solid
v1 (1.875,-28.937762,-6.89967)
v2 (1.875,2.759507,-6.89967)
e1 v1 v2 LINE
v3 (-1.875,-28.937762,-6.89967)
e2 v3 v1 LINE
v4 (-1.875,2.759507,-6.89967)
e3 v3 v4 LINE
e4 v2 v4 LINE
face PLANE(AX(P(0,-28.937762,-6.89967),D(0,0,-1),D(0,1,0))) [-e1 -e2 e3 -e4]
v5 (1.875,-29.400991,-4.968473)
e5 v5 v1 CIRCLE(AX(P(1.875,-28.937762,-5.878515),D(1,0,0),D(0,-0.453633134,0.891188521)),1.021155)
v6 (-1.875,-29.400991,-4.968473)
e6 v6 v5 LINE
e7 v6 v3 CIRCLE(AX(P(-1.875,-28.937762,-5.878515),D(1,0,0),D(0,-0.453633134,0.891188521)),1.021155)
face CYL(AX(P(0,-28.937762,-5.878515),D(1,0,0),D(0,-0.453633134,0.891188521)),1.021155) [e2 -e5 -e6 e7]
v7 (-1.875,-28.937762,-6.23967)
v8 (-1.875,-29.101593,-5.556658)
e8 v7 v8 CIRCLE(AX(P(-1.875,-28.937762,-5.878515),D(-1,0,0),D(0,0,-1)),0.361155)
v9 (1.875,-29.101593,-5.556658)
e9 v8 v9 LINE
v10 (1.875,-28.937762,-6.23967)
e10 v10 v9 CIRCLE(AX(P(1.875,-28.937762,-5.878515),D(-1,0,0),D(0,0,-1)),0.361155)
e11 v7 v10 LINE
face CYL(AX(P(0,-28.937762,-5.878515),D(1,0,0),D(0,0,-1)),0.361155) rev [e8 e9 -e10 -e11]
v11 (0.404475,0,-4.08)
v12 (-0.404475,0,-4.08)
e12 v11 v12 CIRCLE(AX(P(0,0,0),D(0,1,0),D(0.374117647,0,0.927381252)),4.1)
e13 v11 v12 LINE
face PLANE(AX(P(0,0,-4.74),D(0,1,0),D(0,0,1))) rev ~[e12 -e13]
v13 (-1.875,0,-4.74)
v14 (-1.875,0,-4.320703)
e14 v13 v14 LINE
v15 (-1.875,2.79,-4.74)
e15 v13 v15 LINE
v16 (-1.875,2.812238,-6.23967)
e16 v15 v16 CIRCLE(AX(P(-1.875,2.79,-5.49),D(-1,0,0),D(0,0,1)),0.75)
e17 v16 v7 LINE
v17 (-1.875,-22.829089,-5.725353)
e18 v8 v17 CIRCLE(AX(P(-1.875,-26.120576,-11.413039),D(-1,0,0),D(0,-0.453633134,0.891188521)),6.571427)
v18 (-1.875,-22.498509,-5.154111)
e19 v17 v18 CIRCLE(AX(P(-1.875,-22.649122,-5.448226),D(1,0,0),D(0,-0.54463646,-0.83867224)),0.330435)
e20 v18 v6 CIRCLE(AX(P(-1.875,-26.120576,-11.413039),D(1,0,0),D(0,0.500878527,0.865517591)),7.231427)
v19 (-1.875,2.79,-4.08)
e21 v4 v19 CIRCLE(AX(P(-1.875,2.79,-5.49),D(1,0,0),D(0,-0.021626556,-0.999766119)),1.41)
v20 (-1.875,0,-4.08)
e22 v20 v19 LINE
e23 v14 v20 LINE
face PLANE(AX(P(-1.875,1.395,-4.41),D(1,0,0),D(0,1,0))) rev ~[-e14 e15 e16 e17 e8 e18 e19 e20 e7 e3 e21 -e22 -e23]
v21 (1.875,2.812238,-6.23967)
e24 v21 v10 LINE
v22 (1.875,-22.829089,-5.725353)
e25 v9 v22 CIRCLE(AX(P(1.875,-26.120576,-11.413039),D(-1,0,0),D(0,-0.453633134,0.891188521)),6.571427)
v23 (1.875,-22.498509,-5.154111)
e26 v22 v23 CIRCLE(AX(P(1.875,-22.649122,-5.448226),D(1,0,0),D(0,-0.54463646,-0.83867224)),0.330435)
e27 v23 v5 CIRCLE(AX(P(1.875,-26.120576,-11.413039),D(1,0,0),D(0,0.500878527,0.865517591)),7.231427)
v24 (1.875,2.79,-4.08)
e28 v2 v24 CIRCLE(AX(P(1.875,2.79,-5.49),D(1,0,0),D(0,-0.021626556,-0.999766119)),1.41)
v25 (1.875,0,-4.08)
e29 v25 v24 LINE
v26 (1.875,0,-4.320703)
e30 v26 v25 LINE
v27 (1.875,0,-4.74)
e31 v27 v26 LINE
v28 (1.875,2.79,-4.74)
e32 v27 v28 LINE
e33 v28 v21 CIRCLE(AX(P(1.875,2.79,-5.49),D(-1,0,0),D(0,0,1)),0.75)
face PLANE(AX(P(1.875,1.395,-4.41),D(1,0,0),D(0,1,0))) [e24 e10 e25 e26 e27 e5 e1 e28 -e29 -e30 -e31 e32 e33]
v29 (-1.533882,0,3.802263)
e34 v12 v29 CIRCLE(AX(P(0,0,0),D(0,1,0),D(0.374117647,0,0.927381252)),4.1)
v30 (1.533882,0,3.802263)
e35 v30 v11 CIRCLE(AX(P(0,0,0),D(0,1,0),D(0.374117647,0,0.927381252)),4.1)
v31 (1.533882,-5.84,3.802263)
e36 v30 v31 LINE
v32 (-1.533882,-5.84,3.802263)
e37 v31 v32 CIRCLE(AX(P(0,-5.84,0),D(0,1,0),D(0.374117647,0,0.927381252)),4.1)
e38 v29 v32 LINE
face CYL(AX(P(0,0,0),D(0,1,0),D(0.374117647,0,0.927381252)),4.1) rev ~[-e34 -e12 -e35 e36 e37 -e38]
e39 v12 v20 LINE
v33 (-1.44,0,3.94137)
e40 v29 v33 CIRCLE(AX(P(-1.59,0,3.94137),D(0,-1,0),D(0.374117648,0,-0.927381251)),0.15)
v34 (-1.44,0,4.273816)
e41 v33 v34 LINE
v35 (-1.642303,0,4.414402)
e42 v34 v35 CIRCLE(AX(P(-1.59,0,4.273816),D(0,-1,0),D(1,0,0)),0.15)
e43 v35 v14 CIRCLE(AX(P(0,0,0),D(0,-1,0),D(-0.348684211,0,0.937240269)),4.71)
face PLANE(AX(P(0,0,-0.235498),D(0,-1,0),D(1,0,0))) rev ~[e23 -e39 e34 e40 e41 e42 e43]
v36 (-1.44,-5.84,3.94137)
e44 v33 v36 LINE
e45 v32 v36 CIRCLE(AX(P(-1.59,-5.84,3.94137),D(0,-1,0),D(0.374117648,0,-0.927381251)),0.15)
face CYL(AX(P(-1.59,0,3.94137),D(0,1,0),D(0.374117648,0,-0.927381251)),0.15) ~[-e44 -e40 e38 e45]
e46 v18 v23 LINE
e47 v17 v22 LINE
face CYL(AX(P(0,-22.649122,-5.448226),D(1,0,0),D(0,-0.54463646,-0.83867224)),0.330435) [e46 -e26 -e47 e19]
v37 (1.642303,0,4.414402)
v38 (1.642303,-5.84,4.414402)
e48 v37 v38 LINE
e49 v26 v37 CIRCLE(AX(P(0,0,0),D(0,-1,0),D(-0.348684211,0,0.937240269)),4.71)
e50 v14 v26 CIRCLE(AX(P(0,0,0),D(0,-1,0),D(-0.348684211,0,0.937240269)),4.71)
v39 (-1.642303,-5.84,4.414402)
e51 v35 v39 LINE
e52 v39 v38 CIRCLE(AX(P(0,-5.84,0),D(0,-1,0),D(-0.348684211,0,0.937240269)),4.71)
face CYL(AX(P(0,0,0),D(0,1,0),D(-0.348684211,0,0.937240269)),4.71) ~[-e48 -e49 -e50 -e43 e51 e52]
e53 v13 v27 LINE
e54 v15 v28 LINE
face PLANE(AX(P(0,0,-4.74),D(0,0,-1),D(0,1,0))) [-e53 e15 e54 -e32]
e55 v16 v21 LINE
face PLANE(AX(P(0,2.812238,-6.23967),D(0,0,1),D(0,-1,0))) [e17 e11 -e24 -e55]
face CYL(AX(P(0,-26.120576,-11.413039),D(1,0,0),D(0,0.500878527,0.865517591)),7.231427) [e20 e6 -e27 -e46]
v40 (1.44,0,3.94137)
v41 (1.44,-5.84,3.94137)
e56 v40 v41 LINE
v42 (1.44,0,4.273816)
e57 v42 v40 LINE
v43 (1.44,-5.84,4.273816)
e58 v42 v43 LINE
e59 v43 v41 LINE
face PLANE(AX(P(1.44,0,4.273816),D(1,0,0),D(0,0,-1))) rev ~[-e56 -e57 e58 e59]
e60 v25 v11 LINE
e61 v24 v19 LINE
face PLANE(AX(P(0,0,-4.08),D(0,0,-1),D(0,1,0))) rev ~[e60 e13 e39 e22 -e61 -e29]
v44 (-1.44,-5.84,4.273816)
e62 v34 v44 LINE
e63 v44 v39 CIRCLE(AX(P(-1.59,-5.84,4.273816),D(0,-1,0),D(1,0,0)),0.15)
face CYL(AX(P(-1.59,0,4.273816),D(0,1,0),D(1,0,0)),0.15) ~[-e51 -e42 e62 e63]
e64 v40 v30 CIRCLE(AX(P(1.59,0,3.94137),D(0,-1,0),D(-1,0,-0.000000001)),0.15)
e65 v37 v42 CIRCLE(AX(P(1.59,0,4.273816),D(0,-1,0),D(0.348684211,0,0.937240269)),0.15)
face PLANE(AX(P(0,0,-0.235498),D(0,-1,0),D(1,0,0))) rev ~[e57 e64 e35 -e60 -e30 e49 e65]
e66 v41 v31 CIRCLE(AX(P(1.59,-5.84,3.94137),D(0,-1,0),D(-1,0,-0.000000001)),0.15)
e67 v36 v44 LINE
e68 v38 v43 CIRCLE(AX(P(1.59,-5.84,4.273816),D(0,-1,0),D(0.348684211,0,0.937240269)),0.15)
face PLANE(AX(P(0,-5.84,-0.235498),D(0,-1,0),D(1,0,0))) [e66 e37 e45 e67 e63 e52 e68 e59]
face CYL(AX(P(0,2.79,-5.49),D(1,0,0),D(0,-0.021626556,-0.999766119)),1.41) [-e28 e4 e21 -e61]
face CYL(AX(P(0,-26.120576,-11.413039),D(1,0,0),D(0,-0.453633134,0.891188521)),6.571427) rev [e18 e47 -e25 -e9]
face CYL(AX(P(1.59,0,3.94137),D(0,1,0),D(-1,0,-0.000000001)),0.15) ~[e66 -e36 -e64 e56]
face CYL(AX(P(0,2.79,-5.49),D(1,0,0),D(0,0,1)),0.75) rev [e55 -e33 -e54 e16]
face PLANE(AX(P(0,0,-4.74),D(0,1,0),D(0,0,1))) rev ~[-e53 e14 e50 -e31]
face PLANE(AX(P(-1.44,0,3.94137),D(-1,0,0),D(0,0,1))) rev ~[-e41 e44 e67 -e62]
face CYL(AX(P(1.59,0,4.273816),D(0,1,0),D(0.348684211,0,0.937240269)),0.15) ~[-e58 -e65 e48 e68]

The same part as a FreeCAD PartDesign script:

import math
import FreeCAD as App
import Part
import Sketcher

V = App.Vector
Q = App.Units.Quantity

doc = App.newDocument("Part")
body = doc.addObject("PartDesign::Body", "Body")

# Sketch on XZ plane
sketch1 = body.newObject("Sketcher::SketchObject", "Sketch")
sketch1.AttachmentSupport = (doc.getObject("XZ_Plane"), [""])
sketch1.MapMode = "FlatFace"
sketch1.addGeometry([
    Part.ArcOfCircle(Part.Circle(V(0, 0, 0), V(0, 0, 1), 4.1), math.radians(112), math.radians(428)),  # 0
    Part.ArcOfCircle(Part.Circle(V(-1.59, 3.94, 0), V(0, 0, 1), 0.15), math.radians(-68), math.radians(0)),  # 1
    Part.LineSegment(V(-1.44, 3.94, 0), V(-1.44, 4.27, 0)),  # 2
    Part.ArcOfCircle(Part.Circle(V(-1.59, 4.27, 0), V(0, 0, 1), 0.15), math.radians(0), math.radians(110)),  # 3
    Part.ArcOfCircle(Part.Circle(V(0, 0, 0), V(0, 0, 1), 4.71), math.radians(110), math.radians(430)),  # 4
    Part.ArcOfCircle(Part.Circle(V(1.59, 4.27, 0), V(0, 0, 1), 0.15), math.radians(70), math.radians(180)),  # 5
    Part.LineSegment(V(1.44, 4.27, 0), V(1.44, 3.94, 0)),  # 6
    Part.ArcOfCircle(Part.Circle(V(1.59, 3.94, 0), V(0, 0, 1), 0.15), math.radians(180), math.radians(248)),  # 7
], False)
sketch1.addConstraint([
    Sketcher.Constraint("Tangent", 0, 1, 1, 1),
    Sketcher.Constraint("Tangent", 1, 2, 2, 1),
    Sketcher.Constraint("Tangent", 2, 2, 3, 1),
    Sketcher.Constraint("Tangent", 3, 2, 4, 1),
    Sketcher.Constraint("Tangent", 4, 2, 5, 1),
    Sketcher.Constraint("Tangent", 5, 2, 6, 1),
    Sketcher.Constraint("Tangent", 6, 2, 7, 1),
    Sketcher.Constraint("Tangent", 7, 2, 0, 2),
    Sketcher.Constraint("Vertical", 2),
    Sketcher.Constraint("Vertical", 6),
    Sketcher.Constraint("Coincident", 0, 3, -1, 1),
    Sketcher.Constraint("Coincident", 4, 3, -1, 1),
    Sketcher.Constraint("Equal", 1, 3),
    Sketcher.Constraint("Equal", 3, 5),
    Sketcher.Constraint("Equal", 5, 7),
    Sketcher.Constraint("Horizontal", 3, 3, 5, 3),
    Sketcher.Constraint("Radius", 0, Q("4.1 mm")),
    Sketcher.Constraint("Radius", 1, Q("0.15 mm")),
    Sketcher.Constraint("Radius", 4, Q("4.71 mm")),
    Sketcher.Constraint("DistanceX", 1, 3, -1, 1, Q("1.59 mm")),
])
pad1 = body.newObject("PartDesign::Pad", "Pad")
pad1.Profile = sketch1
pad1.Length = 5.84

# Sketch on YZ plane
sketch2 = body.newObject("Sketcher::SketchObject", "Sketch001")
sketch2.AttachmentSupport = (doc.getObject("YZ_Plane"), [""])
sketch2.MapMode = "FlatFace"
sketch2.addGeometry([
    Part.LineSegment(V(0, -4.08, 0), V(0, -4.74, 0)),  # 0
    Part.LineSegment(V(0, -4.74, 0), V(2.79, -4.74, 0)),  # 1
    Part.ArcOfCircle(Part.Circle(V(2.79, -5.49, 0), V(0, 0, 1), 0.75), math.radians(-88), math.radians(90)),  # 2
    Part.LineSegment(V(2.81, -6.24, 0), V(-28.94, -6.24, 0)),  # 3
    Part.ArcOfCircle(Part.Circle(V(-28.94, -5.88, 0), V(0, 0, 1), 0.36), math.radians(117), math.radians(270)),  # 4
    Part.ArcOfCircle(Part.Circle(V(-26.12, -11.41, 0), V(0, 0, 1), 6.57), math.radians(60), math.radians(117)),  # 5
    Part.ArcOfCircle(Part.Circle(V(-22.65, -5.45, 0), V(0, 0, 1), 0.33), math.radians(-123), math.radians(63)),  # 6
    Part.ArcOfCircle(Part.Circle(V(-26.12, -11.41, 0), V(0, 0, 1), 7.23), math.radians(60), math.radians(117)),  # 7
    Part.ArcOfCircle(Part.Circle(V(-28.94, -5.88, 0), V(0, 0, 1), 1.02), math.radians(117), math.radians(270)),  # 8
    Part.LineSegment(V(-28.94, -6.9, 0), V(2.76, -6.9, 0)),  # 9
    Part.ArcOfCircle(Part.Circle(V(2.79, -5.49, 0), V(0, 0, 1), 1.41), math.radians(-91), math.radians(90)),  # 10
    Part.LineSegment(V(2.79, -4.08, 0), V(0, -4.08, 0)),  # 11
], False)
sketch2.addConstraint([
    Sketcher.Constraint("Coincident", 0, 2, 1, 1),
    Sketcher.Constraint("Tangent", 1, 2, 2, 2),
    Sketcher.Constraint("Coincident", 2, 1, 3, 1),
    Sketcher.Constraint("Tangent", 3, 2, 4, 2),
    Sketcher.Constraint("Tangent", 4, 1, 5, 2),
    Sketcher.Constraint("Coincident", 5, 1, 6, 1),
    Sketcher.Constraint("Coincident", 6, 2, 7, 1),
    Sketcher.Constraint("Tangent", 7, 2, 8, 1),
    Sketcher.Constraint("Tangent", 8, 2, 9, 1),
    Sketcher.Constraint("Coincident", 9, 2, 10, 1),
    Sketcher.Constraint("Tangent", 10, 2, 11, 1),
    Sketcher.Constraint("Coincident", 11, 2, 0, 1),
    Sketcher.Constraint("Vertical", 0),
    Sketcher.Constraint("Horizontal", 1),
    Sketcher.Constraint("Horizontal", 3),
    Sketcher.Constraint("Horizontal", 9),
    Sketcher.Constraint("Horizontal", 11),
    Sketcher.Constraint("Coincident", 7, 3, 5, 3),
    Sketcher.Constraint("Coincident", 8, 3, 4, 3),
    Sketcher.Constraint("Coincident", 10, 3, 2, 3),
    Sketcher.Constraint("PointOnObject", 0, 2, -2),
    Sketcher.Constraint("Radius", 2, Q("0.75 mm")),
    Sketcher.Constraint("Radius", 10, Q("1.41 mm")),
    Sketcher.Constraint("DistanceX", 1, 1, 1, 2, Q("2.79 mm")),
    Sketcher.Constraint("DistanceX", 3, 2, 3, 1, Q("31.75 mm")),
    Sketcher.Constraint("DistanceY", 2, 3, -1, 1, Q("5.49 mm")),
    Sketcher.Constraint("DistanceY", 8, 2, 3, 2, Q("0.66 mm")),
    Sketcher.Constraint("Radius", 4, Q("0.361155 mm")),
    Sketcher.Constraint("Radius", 5, Q("6.571427 mm")),
    Sketcher.Constraint("Radius", 6, Q("0.330435 mm")),
    Sketcher.Constraint("DistanceX", 9, 1, 9, 2, Q("31.697268 mm")),
    Sketcher.Constraint("DistanceX", 7, 2, 5, 1, Q("6.571902 mm")),
    Sketcher.Constraint("DistanceY", 5, 3, -1, 1, Q("11.413039 mm")),
    Sketcher.Constraint("DistanceX", 6, 2, -1, 1, Q("22.498509 mm")),
])
pad2 = body.newObject("PartDesign::Pad", "Pad001")
pad2.Profile = sketch2
pad2.Length = 3.75
pad2.Midplane = True

doc.recompute()
